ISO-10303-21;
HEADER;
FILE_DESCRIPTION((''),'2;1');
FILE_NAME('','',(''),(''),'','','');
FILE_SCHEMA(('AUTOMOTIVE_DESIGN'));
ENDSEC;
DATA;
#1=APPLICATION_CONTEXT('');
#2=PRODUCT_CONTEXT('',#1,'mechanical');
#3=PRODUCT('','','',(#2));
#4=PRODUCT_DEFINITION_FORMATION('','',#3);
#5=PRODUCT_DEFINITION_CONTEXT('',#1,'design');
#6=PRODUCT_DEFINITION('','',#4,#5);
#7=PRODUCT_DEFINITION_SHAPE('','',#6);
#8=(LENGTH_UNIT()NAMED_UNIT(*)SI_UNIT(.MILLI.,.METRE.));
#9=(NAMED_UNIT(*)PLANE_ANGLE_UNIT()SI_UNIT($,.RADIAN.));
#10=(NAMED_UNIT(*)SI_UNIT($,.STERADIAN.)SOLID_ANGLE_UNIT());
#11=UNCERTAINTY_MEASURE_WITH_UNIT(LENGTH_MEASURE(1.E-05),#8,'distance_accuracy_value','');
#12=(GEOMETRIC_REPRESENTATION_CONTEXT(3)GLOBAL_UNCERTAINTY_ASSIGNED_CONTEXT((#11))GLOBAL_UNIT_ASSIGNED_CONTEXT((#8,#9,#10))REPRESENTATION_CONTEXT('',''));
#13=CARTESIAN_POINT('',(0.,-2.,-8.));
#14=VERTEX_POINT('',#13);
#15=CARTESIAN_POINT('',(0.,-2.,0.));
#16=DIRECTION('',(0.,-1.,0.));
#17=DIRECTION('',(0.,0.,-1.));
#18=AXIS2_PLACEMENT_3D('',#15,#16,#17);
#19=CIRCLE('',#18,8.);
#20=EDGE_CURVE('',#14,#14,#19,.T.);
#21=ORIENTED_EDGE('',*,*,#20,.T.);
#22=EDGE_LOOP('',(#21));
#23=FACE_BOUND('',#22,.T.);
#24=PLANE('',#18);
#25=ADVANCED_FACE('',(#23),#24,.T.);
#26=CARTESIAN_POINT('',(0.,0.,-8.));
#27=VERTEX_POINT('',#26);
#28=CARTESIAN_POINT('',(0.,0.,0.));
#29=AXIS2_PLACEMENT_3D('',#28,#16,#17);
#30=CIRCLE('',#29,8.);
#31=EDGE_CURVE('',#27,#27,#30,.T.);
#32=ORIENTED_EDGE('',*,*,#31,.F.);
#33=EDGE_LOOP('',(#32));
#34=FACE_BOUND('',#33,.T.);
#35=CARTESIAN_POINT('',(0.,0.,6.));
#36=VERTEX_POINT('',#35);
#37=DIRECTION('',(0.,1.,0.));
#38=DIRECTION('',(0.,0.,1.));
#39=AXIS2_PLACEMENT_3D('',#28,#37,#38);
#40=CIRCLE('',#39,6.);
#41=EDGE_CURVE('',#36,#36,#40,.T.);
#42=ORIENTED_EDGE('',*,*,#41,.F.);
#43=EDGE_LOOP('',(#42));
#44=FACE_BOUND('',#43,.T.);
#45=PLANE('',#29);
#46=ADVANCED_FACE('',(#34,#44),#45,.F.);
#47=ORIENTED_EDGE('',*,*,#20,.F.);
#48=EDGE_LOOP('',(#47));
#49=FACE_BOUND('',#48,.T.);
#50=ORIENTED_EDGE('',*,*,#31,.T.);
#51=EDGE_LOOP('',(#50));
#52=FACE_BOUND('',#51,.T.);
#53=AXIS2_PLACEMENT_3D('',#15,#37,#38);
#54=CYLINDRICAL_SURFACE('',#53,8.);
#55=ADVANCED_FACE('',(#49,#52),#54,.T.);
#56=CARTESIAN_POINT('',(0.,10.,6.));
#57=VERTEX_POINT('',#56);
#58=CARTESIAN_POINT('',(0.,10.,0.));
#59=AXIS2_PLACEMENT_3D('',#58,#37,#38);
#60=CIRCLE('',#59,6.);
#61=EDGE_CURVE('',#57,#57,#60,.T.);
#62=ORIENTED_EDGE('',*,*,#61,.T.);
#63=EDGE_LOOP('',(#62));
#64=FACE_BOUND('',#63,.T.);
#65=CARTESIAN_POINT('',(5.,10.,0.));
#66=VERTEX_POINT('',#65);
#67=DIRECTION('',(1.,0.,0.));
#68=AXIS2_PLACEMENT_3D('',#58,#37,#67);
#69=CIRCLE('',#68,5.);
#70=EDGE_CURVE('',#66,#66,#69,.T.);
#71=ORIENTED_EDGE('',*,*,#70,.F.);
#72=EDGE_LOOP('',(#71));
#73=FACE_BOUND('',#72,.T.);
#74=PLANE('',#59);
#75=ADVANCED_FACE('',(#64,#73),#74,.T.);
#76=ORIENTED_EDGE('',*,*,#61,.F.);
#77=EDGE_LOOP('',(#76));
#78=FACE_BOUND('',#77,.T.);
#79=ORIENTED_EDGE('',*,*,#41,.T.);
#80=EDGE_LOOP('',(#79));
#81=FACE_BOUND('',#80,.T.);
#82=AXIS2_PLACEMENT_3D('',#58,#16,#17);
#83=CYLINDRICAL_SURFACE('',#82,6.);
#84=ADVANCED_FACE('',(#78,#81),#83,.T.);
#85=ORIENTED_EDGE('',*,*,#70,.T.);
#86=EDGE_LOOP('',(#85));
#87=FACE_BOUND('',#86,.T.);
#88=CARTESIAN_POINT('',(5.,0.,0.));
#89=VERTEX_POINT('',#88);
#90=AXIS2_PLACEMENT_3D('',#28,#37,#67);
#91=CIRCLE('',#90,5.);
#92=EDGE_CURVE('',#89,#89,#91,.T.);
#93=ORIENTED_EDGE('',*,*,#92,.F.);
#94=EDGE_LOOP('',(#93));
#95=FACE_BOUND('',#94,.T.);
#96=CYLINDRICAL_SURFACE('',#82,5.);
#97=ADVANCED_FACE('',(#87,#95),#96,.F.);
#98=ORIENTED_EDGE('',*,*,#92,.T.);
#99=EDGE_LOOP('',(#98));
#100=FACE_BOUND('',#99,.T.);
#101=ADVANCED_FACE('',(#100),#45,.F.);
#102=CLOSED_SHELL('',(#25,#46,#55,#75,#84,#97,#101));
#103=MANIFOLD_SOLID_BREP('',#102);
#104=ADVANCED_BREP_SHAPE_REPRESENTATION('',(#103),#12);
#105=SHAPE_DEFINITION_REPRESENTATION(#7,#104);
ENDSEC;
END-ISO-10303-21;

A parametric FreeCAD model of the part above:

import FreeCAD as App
import Part
import Sketcher

V = App.Vector
Q = App.Units.Quantity

doc = App.newDocument("Part")
params = doc.addObject("Spreadsheet::Sheet", "Params")
for row, (alias, value) in enumerate([
    ("sketch1_diameter", "12 mm"),
    ("sketch1_diameter2", "10 mm"),
    ("pad1_length", "10 mm"),
    ("sketch2_diameter", "16 mm"),
    ("pad2_length", "2 mm"),
], start=1):
    params.set(f"A{row}", alias)
    params.set(f"B{row}", "=" + value)
    params.setAlias(f"B{row}", alias)

body = doc.addObject("PartDesign::Body", "Body")

# Sketch on XZ plane
sketch1 = body.newObject("Sketcher::SketchObject", "Sketch")
sketch1.AttachmentSupport = (doc.getObject("XZ_Plane"), [""])
sketch1.MapMode = "FlatFace"
sketch1.addGeometry([
    Part.Circle(V(0, 0, 0), V(0, 0, 1), 6),
    Part.Circle(V(0, 0, 0), V(0, 0, 1), 5),
], False)
sketch1.addConstraint([
    Sketcher.Constraint("Coincident", 0, 3, -1, 1),
    Sketcher.Constraint("Coincident", 1, 3, -1, 1),
    Sketcher.Constraint("Diameter", 0, Q("12 mm")),
    Sketcher.Constraint("Diameter", 1, Q("10 mm")),
])
sketch1.setExpression("Constraints[2]", "Params.sketch1_diameter")
sketch1.setExpression("Constraints[3]", "Params.sketch1_diameter2")
pad1 = body.newObject("PartDesign::Pad", "Pad")
pad1.Profile = sketch1
pad1.setExpression("Length", "Params.pad1_length")
pad1.Reversed = True

# Sketch on XZ plane
sketch2 = body.newObject("Sketcher::SketchObject", "Sketch001")
sketch2.AttachmentSupport = (doc.getObject("XZ_Plane"), [""])
sketch2.MapMode = "FlatFace"
sketch2.addGeometry(Part.Circle(V(0, 0, 0), V(0, 0, 1), 8), False)
sketch2.addConstraint([
    Sketcher.Constraint("Coincident", 0, 3, -1, 1),
    Sketcher.Constraint("Diameter", 0, Q("16 mm")),
])
sketch2.setExpression("Constraints[1]", "Params.sketch2_diameter")
pad2 = body.newObject("PartDesign::Pad", "Pad001")
pad2.Profile = sketch2
pad2.setExpression("Length", "Params.pad2_length")

doc.recompute()
